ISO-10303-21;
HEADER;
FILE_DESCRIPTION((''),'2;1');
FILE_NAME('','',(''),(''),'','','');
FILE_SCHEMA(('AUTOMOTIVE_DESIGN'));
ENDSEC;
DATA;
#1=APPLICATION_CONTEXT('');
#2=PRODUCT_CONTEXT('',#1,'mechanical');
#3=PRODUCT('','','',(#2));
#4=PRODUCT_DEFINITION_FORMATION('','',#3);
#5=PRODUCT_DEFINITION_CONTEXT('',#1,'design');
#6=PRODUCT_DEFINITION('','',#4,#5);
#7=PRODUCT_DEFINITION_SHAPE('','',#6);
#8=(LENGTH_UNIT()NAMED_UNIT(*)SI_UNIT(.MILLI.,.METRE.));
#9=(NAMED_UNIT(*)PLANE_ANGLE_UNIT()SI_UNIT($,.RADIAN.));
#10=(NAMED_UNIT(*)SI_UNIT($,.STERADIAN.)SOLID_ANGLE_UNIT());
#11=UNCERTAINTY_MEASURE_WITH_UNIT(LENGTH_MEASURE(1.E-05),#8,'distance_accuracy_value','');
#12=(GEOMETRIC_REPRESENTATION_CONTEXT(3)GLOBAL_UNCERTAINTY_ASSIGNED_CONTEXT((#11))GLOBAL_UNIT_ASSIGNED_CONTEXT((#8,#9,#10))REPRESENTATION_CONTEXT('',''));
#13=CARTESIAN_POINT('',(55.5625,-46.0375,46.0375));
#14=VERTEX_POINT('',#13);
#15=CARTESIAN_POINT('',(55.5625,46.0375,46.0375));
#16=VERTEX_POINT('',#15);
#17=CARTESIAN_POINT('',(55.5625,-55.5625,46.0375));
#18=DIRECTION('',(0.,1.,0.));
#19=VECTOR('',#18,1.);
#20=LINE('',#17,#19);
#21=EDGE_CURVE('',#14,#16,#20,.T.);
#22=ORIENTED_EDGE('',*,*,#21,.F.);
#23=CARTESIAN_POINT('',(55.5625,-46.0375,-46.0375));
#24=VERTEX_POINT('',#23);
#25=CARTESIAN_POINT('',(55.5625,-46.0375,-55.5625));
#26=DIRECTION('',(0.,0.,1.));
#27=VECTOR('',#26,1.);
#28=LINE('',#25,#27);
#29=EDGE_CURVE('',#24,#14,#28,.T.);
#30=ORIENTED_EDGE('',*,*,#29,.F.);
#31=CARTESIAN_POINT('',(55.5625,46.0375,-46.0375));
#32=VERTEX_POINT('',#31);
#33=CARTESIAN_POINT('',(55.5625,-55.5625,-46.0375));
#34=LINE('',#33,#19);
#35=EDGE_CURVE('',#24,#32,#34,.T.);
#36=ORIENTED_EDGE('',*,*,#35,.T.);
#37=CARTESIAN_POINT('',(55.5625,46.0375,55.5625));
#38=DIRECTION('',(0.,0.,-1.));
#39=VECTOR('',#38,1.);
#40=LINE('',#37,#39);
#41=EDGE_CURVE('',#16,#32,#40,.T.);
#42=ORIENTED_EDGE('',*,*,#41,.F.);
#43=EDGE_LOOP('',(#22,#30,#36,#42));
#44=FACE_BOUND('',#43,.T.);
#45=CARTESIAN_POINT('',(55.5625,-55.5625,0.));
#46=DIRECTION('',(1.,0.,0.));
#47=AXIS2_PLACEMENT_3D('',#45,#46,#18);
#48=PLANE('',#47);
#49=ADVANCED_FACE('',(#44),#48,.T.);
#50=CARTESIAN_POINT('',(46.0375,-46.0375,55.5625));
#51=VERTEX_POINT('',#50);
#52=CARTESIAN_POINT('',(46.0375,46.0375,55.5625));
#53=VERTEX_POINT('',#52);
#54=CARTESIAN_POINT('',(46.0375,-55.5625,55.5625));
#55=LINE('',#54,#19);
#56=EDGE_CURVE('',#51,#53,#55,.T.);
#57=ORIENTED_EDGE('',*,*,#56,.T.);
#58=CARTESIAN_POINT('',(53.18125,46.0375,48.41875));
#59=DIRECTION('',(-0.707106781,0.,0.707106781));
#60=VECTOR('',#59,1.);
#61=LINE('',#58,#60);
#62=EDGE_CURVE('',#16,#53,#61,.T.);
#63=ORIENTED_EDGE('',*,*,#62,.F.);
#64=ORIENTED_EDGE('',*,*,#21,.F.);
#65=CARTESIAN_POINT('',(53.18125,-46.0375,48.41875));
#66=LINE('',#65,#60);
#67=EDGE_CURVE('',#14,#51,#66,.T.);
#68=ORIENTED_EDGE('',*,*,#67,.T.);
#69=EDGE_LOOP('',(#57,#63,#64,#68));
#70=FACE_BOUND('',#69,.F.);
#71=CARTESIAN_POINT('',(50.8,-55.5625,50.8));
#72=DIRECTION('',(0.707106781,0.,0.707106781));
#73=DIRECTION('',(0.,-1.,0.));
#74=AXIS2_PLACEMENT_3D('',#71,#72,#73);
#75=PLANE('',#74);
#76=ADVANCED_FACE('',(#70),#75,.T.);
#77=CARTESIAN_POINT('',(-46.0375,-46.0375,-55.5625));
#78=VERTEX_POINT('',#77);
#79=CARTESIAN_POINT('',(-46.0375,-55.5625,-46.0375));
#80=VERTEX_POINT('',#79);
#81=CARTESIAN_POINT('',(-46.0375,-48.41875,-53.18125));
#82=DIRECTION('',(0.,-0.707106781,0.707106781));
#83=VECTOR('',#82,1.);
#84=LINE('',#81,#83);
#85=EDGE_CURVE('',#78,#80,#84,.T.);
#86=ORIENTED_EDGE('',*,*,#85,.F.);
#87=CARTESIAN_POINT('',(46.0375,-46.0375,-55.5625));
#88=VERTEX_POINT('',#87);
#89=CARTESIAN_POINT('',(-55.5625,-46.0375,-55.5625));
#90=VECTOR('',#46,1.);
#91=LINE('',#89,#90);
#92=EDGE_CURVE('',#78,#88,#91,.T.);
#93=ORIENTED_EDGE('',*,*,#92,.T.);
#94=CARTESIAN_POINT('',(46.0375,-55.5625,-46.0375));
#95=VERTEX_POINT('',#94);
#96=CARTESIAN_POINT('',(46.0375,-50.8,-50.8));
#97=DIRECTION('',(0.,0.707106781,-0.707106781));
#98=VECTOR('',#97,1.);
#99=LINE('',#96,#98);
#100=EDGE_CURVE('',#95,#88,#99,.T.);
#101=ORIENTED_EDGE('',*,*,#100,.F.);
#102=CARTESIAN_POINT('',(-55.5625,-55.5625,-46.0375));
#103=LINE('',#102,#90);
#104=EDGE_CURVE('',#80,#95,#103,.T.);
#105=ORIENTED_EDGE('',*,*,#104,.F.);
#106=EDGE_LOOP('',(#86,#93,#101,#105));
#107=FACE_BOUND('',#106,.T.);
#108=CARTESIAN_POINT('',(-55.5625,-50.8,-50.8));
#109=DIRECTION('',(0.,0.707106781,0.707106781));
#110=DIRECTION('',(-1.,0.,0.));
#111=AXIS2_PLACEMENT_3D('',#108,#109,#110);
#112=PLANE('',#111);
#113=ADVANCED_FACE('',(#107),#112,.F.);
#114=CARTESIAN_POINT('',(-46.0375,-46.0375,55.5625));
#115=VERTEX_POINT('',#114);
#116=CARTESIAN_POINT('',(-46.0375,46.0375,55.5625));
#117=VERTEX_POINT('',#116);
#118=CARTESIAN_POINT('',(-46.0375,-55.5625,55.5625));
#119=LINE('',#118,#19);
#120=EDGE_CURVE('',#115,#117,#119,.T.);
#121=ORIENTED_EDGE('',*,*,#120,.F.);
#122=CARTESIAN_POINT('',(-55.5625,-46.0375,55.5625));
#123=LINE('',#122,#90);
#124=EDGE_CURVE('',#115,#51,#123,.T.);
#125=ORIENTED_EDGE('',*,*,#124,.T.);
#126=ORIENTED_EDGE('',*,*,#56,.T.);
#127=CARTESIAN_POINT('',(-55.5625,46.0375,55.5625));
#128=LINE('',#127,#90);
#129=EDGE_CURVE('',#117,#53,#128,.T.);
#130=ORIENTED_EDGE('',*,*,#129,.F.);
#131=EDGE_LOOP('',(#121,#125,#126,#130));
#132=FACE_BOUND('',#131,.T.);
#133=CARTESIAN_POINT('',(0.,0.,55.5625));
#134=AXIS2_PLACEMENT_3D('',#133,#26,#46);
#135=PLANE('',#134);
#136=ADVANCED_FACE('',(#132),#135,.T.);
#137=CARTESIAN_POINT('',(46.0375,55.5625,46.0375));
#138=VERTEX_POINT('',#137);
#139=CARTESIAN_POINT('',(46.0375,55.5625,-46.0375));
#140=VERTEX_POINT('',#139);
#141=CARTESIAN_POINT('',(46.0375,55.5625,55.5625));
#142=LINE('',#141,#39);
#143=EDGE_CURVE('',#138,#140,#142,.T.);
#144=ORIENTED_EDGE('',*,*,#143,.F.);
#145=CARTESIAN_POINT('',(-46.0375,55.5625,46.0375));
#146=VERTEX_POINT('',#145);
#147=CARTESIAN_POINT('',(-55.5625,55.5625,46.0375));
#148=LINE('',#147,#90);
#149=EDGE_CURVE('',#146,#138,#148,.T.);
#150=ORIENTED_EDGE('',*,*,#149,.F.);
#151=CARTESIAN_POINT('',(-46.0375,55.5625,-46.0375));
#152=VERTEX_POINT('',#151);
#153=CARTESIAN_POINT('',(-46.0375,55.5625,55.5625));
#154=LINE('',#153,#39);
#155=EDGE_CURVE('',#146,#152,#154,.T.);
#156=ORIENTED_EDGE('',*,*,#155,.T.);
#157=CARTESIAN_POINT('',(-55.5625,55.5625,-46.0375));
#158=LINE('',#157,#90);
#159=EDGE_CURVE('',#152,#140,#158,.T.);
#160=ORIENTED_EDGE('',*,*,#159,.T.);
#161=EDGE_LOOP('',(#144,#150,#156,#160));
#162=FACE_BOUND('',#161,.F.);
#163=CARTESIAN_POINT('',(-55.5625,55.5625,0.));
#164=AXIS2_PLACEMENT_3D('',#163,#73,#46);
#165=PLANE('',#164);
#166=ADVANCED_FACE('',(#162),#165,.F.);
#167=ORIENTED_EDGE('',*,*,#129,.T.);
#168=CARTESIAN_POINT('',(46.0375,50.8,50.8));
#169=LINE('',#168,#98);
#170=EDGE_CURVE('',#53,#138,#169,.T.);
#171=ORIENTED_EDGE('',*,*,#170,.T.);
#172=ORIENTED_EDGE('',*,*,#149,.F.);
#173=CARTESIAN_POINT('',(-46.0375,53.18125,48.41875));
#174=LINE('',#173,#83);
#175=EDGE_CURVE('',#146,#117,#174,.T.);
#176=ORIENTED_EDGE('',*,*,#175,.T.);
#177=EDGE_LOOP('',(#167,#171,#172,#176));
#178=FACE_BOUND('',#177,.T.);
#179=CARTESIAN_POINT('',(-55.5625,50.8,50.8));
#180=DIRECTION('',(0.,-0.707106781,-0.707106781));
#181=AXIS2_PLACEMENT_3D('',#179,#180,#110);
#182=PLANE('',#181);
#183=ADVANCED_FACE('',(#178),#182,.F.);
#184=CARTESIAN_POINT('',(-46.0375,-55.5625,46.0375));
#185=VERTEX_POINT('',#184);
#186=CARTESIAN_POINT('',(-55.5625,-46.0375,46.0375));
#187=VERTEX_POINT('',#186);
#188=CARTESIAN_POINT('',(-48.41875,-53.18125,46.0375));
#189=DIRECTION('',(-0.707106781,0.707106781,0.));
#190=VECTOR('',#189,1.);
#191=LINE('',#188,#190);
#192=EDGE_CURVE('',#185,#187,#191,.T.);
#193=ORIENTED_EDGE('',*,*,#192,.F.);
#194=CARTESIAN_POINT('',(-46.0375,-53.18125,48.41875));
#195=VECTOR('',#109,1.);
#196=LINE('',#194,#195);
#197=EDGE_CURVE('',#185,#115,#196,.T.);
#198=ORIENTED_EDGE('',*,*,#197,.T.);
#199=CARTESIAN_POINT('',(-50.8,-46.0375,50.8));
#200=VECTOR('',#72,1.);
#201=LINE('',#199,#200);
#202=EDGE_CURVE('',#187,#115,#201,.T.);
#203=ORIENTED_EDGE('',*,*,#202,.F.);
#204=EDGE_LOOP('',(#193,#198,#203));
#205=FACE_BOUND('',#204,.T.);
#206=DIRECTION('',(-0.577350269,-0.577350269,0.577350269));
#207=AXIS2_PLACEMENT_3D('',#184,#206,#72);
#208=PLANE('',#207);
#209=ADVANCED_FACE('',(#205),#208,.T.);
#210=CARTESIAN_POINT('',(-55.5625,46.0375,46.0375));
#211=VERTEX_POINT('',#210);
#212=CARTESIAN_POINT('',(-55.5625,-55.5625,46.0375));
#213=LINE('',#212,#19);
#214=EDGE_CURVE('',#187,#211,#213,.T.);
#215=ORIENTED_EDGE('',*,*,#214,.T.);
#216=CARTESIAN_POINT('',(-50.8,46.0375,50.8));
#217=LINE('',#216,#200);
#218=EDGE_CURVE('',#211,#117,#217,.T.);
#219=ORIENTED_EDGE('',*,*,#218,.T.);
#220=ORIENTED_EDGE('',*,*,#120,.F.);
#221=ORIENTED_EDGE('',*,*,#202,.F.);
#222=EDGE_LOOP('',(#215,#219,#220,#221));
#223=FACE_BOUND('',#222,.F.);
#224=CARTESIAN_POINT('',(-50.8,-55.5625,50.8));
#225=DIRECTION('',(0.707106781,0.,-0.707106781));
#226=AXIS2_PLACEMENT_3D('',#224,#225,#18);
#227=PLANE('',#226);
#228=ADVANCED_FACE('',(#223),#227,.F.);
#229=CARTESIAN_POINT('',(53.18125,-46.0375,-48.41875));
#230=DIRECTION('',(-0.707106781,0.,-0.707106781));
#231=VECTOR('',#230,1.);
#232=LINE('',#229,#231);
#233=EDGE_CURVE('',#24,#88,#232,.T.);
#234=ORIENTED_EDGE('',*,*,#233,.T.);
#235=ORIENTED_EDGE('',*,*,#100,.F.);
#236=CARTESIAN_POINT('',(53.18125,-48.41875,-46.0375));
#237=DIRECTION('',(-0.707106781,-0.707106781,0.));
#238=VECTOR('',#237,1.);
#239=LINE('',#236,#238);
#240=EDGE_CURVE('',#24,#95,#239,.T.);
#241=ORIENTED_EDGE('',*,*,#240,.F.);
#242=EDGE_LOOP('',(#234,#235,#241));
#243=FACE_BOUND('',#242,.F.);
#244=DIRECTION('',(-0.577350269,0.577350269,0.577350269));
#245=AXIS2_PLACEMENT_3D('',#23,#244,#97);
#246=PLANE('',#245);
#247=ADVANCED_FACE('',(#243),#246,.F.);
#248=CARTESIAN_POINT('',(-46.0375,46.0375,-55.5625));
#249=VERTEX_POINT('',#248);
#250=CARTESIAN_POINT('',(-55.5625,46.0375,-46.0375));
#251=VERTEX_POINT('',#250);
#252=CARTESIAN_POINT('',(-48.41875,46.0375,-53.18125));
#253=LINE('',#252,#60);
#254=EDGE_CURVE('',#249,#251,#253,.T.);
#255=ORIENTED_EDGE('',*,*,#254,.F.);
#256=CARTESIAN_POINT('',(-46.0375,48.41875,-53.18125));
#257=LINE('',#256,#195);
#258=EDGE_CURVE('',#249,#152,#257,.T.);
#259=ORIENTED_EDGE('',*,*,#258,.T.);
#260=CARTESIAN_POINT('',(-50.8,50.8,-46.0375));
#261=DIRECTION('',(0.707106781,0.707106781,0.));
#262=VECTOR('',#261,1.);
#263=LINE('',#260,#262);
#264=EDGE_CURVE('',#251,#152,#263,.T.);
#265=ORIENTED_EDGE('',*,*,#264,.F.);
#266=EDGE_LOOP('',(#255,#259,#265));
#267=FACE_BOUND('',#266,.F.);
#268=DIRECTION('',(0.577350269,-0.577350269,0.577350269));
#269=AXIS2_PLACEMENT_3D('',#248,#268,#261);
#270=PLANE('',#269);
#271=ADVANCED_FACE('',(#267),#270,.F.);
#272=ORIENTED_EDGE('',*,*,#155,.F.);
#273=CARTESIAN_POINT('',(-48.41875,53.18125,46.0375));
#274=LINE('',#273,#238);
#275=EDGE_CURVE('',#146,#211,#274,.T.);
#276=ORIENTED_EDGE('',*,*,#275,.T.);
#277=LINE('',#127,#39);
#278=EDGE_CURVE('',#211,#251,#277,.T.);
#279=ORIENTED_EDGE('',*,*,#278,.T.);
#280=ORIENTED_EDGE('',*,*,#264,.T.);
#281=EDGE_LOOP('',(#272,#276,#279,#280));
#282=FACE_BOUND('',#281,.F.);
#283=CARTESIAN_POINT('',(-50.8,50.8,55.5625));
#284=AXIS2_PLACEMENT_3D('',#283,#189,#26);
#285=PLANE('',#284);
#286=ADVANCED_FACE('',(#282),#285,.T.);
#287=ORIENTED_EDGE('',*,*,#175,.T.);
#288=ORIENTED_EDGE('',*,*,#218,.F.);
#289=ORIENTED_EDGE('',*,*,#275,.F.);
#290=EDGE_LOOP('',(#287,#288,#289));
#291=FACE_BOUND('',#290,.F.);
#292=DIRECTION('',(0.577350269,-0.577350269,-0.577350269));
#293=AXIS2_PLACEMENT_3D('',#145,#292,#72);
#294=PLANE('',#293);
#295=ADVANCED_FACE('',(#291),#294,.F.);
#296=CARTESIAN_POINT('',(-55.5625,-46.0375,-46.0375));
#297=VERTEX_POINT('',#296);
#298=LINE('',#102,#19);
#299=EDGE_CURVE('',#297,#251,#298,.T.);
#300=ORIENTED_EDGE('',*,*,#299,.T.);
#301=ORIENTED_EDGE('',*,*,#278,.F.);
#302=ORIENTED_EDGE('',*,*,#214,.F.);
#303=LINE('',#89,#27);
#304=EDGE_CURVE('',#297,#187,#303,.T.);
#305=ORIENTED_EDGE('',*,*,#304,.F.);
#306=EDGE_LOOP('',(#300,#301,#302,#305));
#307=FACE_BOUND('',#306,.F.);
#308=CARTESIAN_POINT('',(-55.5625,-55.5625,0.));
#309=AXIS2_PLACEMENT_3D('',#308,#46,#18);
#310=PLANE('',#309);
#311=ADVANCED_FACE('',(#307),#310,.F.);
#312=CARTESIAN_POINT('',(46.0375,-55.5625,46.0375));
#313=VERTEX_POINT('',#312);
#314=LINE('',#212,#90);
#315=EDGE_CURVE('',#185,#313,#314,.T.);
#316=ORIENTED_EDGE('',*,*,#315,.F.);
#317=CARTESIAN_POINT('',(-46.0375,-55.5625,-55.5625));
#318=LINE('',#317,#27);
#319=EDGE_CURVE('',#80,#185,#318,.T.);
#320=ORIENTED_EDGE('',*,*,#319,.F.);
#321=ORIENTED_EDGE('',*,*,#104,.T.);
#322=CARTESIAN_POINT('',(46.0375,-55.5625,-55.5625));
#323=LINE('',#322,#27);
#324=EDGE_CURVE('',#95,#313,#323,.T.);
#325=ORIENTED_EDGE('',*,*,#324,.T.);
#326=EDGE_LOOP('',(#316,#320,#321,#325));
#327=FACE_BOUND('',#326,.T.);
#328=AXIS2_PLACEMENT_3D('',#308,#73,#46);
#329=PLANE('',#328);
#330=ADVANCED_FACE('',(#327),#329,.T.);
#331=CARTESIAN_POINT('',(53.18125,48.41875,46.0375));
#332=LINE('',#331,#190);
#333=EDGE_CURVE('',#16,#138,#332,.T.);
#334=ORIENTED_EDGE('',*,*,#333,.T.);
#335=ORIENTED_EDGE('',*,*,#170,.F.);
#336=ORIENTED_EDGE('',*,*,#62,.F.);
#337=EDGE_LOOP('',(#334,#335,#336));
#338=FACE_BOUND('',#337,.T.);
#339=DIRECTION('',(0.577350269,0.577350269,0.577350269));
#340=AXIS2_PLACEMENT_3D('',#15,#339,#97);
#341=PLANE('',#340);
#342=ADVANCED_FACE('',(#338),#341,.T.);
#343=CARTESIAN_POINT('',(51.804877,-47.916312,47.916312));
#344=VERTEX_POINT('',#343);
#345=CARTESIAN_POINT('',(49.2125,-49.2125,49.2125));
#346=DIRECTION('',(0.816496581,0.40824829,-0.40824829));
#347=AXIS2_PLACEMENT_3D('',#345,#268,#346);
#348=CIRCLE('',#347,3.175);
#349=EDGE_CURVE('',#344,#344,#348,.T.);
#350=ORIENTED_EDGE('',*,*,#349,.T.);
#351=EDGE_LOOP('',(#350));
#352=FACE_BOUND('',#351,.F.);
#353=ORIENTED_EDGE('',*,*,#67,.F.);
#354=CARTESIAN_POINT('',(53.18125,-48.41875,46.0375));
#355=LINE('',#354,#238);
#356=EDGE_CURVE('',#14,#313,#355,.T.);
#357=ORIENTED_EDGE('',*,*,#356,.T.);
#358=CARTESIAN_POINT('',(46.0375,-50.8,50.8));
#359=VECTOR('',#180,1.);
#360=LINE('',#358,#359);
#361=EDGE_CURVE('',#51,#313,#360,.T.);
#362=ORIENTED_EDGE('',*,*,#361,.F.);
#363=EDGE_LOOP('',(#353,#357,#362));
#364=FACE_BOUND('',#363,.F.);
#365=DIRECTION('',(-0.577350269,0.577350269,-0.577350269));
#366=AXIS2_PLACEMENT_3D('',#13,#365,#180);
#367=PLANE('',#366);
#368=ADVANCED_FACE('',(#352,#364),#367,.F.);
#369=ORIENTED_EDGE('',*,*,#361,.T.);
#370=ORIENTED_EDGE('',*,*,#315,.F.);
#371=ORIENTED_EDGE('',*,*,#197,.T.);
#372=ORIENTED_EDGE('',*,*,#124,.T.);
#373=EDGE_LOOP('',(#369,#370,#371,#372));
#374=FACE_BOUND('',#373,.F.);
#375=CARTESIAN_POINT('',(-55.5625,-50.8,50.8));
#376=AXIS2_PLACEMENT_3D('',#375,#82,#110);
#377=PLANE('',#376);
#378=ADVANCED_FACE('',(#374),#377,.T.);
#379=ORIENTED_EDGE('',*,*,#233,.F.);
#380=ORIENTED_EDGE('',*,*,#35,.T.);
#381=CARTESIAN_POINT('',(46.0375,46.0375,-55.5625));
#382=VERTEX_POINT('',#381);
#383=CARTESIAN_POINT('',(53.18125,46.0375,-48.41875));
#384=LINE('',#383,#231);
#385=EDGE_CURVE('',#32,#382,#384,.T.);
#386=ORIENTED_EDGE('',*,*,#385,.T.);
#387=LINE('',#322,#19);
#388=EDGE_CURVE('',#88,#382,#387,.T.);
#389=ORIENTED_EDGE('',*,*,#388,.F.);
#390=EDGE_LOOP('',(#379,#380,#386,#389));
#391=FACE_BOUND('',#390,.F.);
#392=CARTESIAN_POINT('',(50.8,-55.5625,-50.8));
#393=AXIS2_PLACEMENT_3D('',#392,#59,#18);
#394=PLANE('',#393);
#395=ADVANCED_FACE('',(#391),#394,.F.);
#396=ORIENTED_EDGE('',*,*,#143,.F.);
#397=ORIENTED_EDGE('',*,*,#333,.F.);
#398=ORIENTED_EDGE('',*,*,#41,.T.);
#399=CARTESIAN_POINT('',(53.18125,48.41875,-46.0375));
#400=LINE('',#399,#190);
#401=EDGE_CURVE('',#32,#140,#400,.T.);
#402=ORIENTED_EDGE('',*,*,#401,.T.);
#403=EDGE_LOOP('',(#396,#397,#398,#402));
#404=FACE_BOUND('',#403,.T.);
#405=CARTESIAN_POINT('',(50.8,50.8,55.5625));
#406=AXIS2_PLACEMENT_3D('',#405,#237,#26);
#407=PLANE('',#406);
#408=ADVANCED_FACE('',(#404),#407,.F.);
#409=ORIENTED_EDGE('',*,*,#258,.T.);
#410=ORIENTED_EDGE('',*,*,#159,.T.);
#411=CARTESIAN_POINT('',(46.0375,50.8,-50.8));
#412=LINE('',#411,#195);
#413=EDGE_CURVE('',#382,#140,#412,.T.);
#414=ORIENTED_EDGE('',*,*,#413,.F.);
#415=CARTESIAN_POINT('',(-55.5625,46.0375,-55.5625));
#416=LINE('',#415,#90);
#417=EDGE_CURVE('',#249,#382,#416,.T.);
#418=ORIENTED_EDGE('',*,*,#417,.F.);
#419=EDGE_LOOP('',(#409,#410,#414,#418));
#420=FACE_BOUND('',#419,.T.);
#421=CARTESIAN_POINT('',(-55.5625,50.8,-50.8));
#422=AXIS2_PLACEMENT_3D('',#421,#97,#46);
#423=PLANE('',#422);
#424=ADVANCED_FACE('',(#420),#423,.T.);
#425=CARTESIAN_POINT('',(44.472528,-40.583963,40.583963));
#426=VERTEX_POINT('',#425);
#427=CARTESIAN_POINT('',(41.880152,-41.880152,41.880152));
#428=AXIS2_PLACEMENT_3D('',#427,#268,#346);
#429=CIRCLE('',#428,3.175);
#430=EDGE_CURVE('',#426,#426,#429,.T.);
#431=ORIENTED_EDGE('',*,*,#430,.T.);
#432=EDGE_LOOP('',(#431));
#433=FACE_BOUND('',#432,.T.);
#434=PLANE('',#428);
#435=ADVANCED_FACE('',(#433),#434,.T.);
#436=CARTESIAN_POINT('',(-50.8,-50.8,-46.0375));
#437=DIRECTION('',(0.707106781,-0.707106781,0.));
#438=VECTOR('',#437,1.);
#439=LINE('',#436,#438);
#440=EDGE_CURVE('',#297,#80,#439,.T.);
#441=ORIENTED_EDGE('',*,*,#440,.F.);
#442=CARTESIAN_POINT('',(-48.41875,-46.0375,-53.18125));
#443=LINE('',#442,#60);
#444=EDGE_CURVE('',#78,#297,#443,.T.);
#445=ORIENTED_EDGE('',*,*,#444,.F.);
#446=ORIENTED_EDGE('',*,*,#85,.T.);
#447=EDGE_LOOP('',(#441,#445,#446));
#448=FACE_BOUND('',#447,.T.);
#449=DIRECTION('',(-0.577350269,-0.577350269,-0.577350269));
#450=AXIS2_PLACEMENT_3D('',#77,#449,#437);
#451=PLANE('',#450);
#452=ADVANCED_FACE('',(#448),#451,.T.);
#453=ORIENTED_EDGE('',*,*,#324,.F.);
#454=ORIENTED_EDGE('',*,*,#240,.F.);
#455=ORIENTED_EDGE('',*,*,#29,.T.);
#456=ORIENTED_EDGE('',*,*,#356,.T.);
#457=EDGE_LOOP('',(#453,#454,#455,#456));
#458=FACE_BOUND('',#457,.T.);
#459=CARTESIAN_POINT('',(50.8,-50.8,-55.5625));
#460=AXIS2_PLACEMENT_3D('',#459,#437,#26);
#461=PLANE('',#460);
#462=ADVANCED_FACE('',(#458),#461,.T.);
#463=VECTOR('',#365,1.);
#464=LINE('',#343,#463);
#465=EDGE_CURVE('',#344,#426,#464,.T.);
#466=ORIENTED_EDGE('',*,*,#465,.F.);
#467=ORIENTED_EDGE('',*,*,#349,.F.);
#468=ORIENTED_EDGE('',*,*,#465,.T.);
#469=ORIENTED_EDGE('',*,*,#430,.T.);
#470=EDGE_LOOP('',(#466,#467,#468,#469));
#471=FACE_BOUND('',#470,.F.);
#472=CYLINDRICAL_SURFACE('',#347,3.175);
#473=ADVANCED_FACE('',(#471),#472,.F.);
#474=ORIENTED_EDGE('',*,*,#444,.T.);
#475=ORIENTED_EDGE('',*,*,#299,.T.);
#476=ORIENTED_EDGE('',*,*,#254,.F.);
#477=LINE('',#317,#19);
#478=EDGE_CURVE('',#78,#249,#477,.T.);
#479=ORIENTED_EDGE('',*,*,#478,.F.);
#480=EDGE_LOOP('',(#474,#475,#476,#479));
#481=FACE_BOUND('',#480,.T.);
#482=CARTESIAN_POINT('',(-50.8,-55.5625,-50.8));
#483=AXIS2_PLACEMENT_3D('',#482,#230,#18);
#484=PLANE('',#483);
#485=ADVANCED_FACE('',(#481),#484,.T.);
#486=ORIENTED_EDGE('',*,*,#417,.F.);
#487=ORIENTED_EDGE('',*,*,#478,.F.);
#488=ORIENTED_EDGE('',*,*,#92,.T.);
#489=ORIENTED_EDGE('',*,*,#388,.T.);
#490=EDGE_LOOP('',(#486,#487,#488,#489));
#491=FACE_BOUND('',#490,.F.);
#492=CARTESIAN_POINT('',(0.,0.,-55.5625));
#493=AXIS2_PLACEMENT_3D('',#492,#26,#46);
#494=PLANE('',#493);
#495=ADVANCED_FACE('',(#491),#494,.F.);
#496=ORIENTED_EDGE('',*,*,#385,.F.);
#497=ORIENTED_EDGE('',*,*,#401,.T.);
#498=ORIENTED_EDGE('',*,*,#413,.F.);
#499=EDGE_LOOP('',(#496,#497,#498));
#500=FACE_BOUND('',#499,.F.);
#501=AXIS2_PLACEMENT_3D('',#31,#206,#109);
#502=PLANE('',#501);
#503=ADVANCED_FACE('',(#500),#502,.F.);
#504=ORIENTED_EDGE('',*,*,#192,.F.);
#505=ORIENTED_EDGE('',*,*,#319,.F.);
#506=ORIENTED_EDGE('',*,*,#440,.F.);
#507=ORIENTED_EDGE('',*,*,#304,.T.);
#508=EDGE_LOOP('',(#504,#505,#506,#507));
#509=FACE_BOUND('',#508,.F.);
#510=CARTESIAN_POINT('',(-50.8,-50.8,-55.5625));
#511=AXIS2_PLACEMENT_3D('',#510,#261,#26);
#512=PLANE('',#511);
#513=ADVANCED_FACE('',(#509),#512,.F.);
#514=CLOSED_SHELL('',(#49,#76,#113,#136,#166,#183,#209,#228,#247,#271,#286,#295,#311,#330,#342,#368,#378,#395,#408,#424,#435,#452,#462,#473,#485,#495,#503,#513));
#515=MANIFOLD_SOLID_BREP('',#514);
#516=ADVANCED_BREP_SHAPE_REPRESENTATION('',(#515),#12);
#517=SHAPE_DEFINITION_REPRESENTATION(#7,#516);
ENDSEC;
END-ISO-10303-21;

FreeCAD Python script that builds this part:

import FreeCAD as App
import Part
import Sketcher

V = App.Vector
Q = App.Units.Quantity

doc = App.newDocument("Part")
body = doc.addObject("PartDesign::Body", "Body")

sketch1 = body.newObject("Sketcher::SketchObject", "Sketch")
sketch1.AttachmentSupport = (doc.getObject("XY_Plane"), [""])
sketch1.MapMode = "FlatFace"
sketch1.addGeometry(Part.LineSegment(V(-55.5625, 55.5625, 0), V(-55.5625, -55.5625, 0)), False)
sketch1.addGeometry(Part.LineSegment(V(-55.5625, -55.5625, 0), V(55.5625, -55.5625, 0)), False)
sketch1.addGeometry(Part.LineSegment(V(55.5625, -55.5625, 0), V(55.5625, 55.5625, 0)), False)
sketch1.addGeometry(Part.LineSegment(V(55.5625, 55.5625, 0), V(-55.5625, 55.5625, 0)), False)
sketch1.addConstraint(Sketcher.Constraint("Coincident", 0, 2, 1, 1))
sketch1.addConstraint(Sketcher.Constraint("Coincident", 1, 2, 2, 1))
sketch1.addConstraint(Sketcher.Constraint("Coincident", 2, 2, 3, 1))
sketch1.addConstraint(Sketcher.Constraint("Coincident", 3, 2, 0, 1))
sketch1.addConstraint(Sketcher.Constraint("Vertical", 0))
sketch1.addConstraint(Sketcher.Constraint("Horizontal", 1))
sketch1.addConstraint(Sketcher.Constraint("Vertical", 2))
sketch1.addConstraint(Sketcher.Constraint("Horizontal", 3))
sketch1.addConstraint(Sketcher.Constraint("Symmetric", 0, 2, 2, 2, -1, 1))
sketch1.addConstraint(Sketcher.Constraint("Equal", 3, 0))
sketch1.addConstraint(Sketcher.Constraint("DistanceX", 1, 1, 1, 2, Q("4.375 in")))
pad1 = body.newObject("PartDesign::Pad", "Pad")
pad1.Profile = sketch1
pad1.Length = Q("4.375 in")
pad1.Midplane = True
doc.recompute()

chamfer = body.newObject("PartDesign::Chamfer", "Chamfer")
chamfer.Base = (pad1, ["Edge1"])
chamfer.UseAllEdges = True
chamfer.Size = Q("0.375 in")

sketch2 = body.newObject("Sketcher::SketchObject", "Sketch001")
sketch2.Placement = App.Placement(V(49.2125, -49.2125, 49.2125), App.Rotation(V(0.816496581, 0.40824829, -0.40824829), V(0, 0.707106781, 0.707106781), V(0.577350269, -0.577350269, 0.577350269), "ZXY"))
sketch2.addGeometry(Part.Circle(V(0, 0, 0), V(0, 0, 1), 3.175), False)
sketch2.addConstraint(Sketcher.Constraint("Coincident", 0, 3, -1, 1))
sketch2.addConstraint(Sketcher.Constraint("Diameter", 0, Q("0.25 in")))
pocket1 = body.newObject("PartDesign::Pocket", "Pocket")
pocket1.Profile = sketch2
pocket1.Length = Q("0.5 in")

doc.recompute()
